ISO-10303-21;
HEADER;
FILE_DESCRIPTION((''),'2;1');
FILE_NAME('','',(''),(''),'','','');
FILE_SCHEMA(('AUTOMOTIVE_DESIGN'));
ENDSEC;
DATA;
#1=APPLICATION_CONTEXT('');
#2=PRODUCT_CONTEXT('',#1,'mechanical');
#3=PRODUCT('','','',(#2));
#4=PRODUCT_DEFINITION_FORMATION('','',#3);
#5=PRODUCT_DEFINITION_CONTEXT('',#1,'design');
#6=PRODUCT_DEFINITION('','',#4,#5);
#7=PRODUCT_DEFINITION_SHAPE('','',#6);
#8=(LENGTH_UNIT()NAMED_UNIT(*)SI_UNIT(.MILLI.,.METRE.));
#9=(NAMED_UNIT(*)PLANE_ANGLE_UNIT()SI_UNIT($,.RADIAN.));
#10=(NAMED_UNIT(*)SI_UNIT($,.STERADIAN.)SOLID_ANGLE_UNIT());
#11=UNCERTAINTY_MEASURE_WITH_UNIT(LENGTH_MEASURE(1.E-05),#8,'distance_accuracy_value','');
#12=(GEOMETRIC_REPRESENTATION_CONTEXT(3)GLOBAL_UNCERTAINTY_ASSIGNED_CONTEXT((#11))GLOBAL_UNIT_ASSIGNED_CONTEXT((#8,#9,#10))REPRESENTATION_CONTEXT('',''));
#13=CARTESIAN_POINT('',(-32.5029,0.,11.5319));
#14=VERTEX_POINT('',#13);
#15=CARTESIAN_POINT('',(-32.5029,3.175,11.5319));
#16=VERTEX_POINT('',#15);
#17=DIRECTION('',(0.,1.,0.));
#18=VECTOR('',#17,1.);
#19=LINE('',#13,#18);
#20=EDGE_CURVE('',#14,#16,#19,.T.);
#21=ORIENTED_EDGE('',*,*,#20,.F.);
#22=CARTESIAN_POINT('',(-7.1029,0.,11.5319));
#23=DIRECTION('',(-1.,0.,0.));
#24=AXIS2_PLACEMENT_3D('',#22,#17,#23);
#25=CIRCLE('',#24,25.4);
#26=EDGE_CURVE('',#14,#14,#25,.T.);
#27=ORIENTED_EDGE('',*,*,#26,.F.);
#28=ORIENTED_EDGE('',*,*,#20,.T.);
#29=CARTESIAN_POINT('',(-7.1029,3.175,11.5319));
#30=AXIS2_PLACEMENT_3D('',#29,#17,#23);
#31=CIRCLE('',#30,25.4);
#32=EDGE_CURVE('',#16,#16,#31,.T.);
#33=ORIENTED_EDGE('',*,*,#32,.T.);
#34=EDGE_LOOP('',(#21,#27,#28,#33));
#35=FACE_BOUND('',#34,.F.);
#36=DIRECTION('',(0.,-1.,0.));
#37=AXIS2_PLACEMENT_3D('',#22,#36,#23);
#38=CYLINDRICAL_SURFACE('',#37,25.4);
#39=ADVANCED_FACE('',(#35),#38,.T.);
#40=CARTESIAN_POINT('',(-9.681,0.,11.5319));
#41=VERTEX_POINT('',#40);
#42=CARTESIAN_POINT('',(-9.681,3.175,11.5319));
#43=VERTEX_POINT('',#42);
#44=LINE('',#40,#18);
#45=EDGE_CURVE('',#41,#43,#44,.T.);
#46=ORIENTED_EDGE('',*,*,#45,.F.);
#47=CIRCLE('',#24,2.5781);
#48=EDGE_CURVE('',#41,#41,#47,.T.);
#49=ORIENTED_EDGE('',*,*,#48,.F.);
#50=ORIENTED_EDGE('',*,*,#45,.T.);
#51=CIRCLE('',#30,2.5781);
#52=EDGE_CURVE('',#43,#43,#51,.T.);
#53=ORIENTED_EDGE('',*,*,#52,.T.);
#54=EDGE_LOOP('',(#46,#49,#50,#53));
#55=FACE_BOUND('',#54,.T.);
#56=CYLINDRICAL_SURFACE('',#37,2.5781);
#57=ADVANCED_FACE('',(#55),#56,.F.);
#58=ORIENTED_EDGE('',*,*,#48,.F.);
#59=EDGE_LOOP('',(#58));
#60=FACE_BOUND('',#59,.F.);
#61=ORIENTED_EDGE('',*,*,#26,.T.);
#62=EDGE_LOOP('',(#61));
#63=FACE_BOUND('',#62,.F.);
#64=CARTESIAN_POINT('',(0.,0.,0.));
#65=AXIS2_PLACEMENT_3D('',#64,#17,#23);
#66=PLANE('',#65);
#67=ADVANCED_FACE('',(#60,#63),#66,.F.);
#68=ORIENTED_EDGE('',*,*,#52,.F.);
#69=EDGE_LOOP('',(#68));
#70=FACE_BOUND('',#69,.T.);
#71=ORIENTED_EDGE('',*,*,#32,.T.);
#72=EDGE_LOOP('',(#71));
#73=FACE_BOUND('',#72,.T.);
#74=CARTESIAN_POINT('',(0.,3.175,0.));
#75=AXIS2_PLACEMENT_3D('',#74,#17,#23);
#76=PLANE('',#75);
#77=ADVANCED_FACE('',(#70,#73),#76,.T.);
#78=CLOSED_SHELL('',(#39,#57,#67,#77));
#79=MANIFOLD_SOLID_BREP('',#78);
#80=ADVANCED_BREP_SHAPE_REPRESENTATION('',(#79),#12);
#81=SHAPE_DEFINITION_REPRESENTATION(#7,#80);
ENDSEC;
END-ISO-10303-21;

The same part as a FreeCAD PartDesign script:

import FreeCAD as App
import Part
import Sketcher
from FreeCAD import Vector
Q = App.Units.Quantity

doc = App.newDocument("Part")
params = doc.addObject("Spreadsheet::Sheet", "Params")
for row, (alias, value) in enumerate([
    ("sketch1_diameter", "2 in"),
    ("sketch1_diameter2", "0.203 in"),
    ("pad1_length", "0.125 in"),
], start=1):
    params.set(f"A{row}", alias)
    params.set(f"B{row}", "=" + value)
    params.setAlias(f"B{row}", alias)

body = doc.addObject("PartDesign::Body", "Body")

# Sketch on XZ plane
sketch1 = doc.addObject("Sketcher::SketchObject", "Sketch")
body.addObject(sketch1)
sketch1.AttachmentSupport = (doc.XZ_Plane, [""])
sketch1.MapMode = "FlatFace"
sketch1.addGeometry([
    Part.Circle(Vector(-7.1029, 11.5319, 0), Vector(0, 0, 1), 25.4),
    Part.Circle(Vector(-7.1029, 11.5319, 0), Vector(0, 0, 1), 2.5781),
], False)
sketch1.addConstraint([
    Sketcher.Constraint("Coincident", 1, 3, 0, 3),
    Sketcher.Constraint("Diameter", 0, Q("2 in")),
    Sketcher.Constraint("Diameter", 1, Q("0.203 in")),
    Sketcher.Constraint("DistanceY", -1, 1, 0, 3, Q("0.454 in")),
    Sketcher.Constraint("DistanceX", 0, 3, -1, 1, Q("7.103 mm")),
])
sketch1.setExpression("Constraints[1]", "Params.sketch1_diameter")
sketch1.setExpression("Constraints[2]", "Params.sketch1_diameter2")
pad1 = doc.addObject("PartDesign::Pad", "Pad")
body.addObject(pad1)
pad1.Profile = sketch1
pad1.setExpression("Length", "Params.pad1_length")
pad1.Reversed = True

doc.recompute()
